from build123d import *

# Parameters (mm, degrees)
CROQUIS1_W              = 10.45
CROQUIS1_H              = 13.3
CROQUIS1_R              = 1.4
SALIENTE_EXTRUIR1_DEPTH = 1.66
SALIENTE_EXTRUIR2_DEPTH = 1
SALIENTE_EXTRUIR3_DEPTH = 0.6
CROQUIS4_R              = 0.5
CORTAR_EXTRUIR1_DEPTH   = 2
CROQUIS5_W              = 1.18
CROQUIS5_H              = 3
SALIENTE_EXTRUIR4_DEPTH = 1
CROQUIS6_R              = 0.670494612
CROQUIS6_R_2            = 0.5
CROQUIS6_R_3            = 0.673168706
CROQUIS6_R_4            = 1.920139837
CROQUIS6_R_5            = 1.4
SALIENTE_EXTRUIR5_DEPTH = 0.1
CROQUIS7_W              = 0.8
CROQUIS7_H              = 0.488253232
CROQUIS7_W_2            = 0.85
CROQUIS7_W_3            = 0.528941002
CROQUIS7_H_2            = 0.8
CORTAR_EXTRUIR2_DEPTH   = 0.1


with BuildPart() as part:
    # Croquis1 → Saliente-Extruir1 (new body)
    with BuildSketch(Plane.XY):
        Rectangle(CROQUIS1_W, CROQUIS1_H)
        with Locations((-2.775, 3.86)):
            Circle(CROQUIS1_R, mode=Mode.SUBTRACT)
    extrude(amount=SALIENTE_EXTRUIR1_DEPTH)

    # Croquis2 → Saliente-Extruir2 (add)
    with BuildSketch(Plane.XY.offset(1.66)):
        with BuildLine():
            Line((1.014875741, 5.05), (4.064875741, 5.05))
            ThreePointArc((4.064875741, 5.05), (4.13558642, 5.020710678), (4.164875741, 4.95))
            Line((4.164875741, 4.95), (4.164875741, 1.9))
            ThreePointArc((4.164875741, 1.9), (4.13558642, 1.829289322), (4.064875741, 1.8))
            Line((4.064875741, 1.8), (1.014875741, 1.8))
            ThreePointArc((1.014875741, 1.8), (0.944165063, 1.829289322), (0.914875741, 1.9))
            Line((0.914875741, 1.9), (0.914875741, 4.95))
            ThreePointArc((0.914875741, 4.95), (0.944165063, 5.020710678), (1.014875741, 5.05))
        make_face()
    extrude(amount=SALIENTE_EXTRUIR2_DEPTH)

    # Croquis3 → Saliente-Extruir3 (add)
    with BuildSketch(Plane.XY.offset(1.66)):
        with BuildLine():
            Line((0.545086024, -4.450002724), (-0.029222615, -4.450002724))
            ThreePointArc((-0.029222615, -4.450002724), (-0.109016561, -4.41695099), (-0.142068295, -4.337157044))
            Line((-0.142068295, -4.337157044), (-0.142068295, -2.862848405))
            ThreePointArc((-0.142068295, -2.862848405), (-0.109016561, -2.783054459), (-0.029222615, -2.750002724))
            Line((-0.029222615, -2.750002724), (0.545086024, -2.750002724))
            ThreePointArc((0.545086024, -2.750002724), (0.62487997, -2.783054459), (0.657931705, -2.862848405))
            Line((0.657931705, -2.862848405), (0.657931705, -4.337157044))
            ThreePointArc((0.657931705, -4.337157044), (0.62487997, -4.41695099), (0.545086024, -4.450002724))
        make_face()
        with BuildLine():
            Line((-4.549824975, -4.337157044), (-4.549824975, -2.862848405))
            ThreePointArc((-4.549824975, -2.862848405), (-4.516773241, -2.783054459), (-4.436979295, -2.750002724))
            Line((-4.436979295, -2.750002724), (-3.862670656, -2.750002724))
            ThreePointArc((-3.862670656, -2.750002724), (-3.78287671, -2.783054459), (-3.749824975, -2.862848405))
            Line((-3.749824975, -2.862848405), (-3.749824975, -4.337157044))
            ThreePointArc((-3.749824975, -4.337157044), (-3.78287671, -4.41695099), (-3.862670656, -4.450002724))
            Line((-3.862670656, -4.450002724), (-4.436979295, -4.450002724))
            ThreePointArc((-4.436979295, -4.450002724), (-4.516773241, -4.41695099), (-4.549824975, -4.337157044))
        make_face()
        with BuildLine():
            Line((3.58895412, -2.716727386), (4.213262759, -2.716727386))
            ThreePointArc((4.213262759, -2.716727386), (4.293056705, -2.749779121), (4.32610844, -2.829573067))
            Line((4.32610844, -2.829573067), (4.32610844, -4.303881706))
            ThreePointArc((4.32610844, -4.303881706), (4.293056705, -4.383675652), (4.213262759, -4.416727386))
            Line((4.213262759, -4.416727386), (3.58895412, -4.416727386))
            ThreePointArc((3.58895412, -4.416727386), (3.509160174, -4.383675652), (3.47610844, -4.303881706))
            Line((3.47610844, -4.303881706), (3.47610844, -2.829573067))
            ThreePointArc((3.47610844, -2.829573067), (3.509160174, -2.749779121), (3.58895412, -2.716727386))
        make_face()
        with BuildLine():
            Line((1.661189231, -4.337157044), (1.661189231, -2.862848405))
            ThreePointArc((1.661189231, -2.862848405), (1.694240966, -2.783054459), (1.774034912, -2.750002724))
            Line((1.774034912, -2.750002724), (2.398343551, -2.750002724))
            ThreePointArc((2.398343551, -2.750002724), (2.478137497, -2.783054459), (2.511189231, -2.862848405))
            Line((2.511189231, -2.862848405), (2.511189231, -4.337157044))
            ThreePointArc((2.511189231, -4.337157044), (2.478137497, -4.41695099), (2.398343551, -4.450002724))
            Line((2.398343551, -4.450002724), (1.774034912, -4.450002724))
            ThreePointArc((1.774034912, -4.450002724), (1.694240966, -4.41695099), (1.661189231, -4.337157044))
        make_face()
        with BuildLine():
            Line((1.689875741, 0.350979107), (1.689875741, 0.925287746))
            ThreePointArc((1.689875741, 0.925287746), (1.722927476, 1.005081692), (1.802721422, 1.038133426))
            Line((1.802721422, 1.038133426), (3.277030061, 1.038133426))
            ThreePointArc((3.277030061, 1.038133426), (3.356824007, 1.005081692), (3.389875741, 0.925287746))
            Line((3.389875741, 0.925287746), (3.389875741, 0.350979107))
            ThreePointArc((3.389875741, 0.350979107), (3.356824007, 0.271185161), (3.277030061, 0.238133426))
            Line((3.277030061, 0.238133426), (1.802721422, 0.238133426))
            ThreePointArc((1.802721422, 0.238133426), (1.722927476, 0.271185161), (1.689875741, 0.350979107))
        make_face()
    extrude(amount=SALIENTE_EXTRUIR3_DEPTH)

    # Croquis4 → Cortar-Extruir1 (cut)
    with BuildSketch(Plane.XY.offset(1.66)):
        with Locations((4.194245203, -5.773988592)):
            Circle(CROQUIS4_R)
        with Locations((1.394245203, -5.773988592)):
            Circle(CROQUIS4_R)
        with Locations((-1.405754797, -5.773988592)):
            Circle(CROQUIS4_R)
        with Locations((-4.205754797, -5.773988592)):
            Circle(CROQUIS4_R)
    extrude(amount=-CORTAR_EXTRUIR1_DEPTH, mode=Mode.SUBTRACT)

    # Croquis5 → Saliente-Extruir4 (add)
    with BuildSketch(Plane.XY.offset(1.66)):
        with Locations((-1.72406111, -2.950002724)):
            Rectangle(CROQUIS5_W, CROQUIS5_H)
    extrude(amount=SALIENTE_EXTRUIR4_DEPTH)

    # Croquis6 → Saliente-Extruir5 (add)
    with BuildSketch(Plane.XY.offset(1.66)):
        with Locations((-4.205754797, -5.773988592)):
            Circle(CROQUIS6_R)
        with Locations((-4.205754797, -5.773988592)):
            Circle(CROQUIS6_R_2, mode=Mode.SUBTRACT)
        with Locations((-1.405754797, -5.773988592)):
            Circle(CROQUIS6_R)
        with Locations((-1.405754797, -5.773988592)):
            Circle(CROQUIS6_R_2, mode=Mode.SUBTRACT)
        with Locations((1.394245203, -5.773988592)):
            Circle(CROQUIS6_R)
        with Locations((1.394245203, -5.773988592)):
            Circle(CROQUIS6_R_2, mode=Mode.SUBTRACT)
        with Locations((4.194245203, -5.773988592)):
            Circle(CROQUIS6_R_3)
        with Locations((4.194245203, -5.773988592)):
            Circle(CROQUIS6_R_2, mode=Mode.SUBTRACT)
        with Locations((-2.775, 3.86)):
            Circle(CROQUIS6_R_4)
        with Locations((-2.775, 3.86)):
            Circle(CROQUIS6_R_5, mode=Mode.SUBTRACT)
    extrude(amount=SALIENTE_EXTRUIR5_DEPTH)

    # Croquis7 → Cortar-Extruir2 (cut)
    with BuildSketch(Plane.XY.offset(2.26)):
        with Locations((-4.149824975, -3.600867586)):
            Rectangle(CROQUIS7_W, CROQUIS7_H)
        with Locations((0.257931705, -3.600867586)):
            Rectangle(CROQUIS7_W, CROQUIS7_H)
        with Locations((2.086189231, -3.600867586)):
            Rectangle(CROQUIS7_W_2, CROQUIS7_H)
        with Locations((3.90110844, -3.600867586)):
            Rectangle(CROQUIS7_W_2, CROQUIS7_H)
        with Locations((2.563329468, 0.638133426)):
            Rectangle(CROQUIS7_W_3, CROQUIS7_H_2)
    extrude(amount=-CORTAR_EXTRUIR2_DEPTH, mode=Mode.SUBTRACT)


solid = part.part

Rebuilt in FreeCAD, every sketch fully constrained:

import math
import FreeCAD as App
import Part
import Sketcher
Q = App.Units.Quantity


def add_polygon(sketch, points):
    """Adds a closed chain of lines whose ends are joined by coincident constraints."""
    first, n = sketch.GeometryCount, len(points)
    for a, b in zip(points, points[1:] + points[:1]):
        sketch.addGeometry(Part.LineSegment(App.Vector(*a, 0), App.Vector(*b, 0)), False)
    for i in range(n):
        sketch.addConstraint(Sketcher.Constraint("Coincident", first + i, 2, first + (i + 1) % n, 1))

doc = App.newDocument("Part")
body = doc.addObject("PartDesign::Body", "Body")

# Sketch on XY plane
sketch1 = body.newObject("Sketcher::SketchObject", "Sketch")
sketch1.AttachmentSupport = (doc.getObject("XY_Plane"), [""])
sketch1.MapMode = "FlatFace"
add_polygon(sketch1, [(-5.2, 6.7), (-5.2, -6.7), (5.2, -6.7), (5.2, 6.7)])  # lines 0-3
sketch1.addGeometry(Part.Circle(App.Vector(-2.8, 3.9, 0), App.Vector(0, 0, 1), 1.4), False)  # 4
sketch1.addConstraint(Sketcher.Constraint("Vertical", 0))
sketch1.addConstraint(Sketcher.Constraint("Horizontal", 1))
sketch1.addConstraint(Sketcher.Constraint("Vertical", 2))
sketch1.addConstraint(Sketcher.Constraint("Horizontal", 3))
sketch1.addConstraint(Sketcher.Constraint("Symmetric", 0, 2, 2, 2, -1, 1))
sketch1.addConstraint(Sketcher.Constraint("Diameter", 4, Q("2.8 mm")))
sketch1.addConstraint(Sketcher.Constraint("DistanceY", 0, 2, 0, 1, Q("13.3 mm")))
sketch1.addConstraint(Sketcher.Constraint("DistanceX", 4, 3, 1, 2, Q("8 mm")))
sketch1.addConstraint(Sketcher.Constraint("DistanceX", 1, 1, 1, 2, Q("10.45 mm")))
sketch1.addConstraint(Sketcher.Constraint("DistanceY", -1, 1, 4, 3, Q("3.86 mm")))
pad1 = body.newObject("PartDesign::Pad", "Pad")
pad1.Profile = sketch1
pad1.Length = 1.66

# Sketch on XY plane
sketch2 = body.newObject("Sketcher::SketchObject", "Sketch001")
sketch2.AttachmentSupport = (doc.getObject("XY_Plane"), [""])
sketch2.MapMode = "FlatFace"
sketch2.AttachmentOffset = App.Placement(App.Vector(0, 0, 1.66), App.Rotation())
sketch2.addGeometry(Part.LineSegment(App.Vector(4.06, 5.05, 0), App.Vector(1.01, 5.05, 0)), False)
sketch2.addGeometry(Part.ArcOfCircle(Part.Circle(App.Vector(1.01, 4.95, 0), App.Vector(0, 0, 1), 0.1), math.radians(90), math.radians(180)), False)
sketch2.addGeometry(Part.LineSegment(App.Vector(0.91, 4.95, 0), App.Vector(0.91, 1.9, 0)), False)
sketch2.addGeometry(Part.ArcOfCircle(Part.Circle(App.Vector(1.01, 1.9, 0), App.Vector(0, 0, 1), 0.1), math.radians(180), math.radians(270)), False)
sketch2.addGeometry(Part.LineSegment(App.Vector(1.01, 1.8, 0), App.Vector(4.06, 1.8, 0)), False)
sketch2.addGeometry(Part.ArcOfCircle(Part.Circle(App.Vector(4.06, 1.9, 0), App.Vector(0, 0, 1), 0.1), math.radians(-90), math.radians(0)), False)
sketch2.addGeometry(Part.LineSegment(App.Vector(4.16, 1.9, 0), App.Vector(4.16, 4.95, 0)), False)
sketch2.addGeometry(Part.ArcOfCircle(Part.Circle(App.Vector(4.06, 4.95, 0), App.Vector(0, 0, 1), 0.1), math.radians(0), math.radians(90)), False)
sketch2.addConstraint(Sketcher.Constraint("Tangent", 0, 2, 1, 1))
sketch2.addConstraint(Sketcher.Constraint("Tangent", 1, 2, 2, 1))
sketch2.addConstraint(Sketcher.Constraint("Tangent", 2, 2, 3, 1))
sketch2.addConstraint(Sketcher.Constraint("Tangent", 3, 2, 4, 1))
sketch2.addConstraint(Sketcher.Constraint("Tangent", 4, 2, 5, 1))
sketch2.addConstraint(Sketcher.Constraint("Tangent", 5, 2, 6, 1))
sketch2.addConstraint(Sketcher.Constraint("Tangent", 6, 2, 7, 1))
sketch2.addConstraint(Sketcher.Constraint("Tangent", 7, 2, 0, 1))
sketch2.addConstraint(Sketcher.Constraint("Horizontal", 0))
sketch2.addConstraint(Sketcher.Constraint("Vertical", 2))
sketch2.addConstraint(Sketcher.Constraint("Horizontal", 4))
sketch2.addConstraint(Sketcher.Constraint("Vertical", 6))
sketch2.addConstraint(Sketcher.Constraint("Equal", 1, 3))
sketch2.addConstraint(Sketcher.Constraint("Equal", 3, 5))
sketch2.addConstraint(Sketcher.Constraint("Equal", 5, 7))
sketch2.addConstraint(Sketcher.Constraint("Equal", 4, 2))
sketch2.addConstraint(Sketcher.Constraint("Radius", 1, Q("0.1 mm")))
sketch2.addConstraint(Sketcher.Constraint("DistanceX", 0, 2, 0, 1, Q("3.05 mm")))
sketch2.addConstraint(Sketcher.Constraint("DistanceY", -1, 1, 3, 3, Q("1.9 mm")))
sketch2.addConstraint(Sketcher.Constraint("DistanceX", -1, 1, 1, 3, Q("1.014876 mm")))
pad2 = body.newObject("PartDesign::Pad", "Pad001")
pad2.Profile = sketch2
pad2.Length = 1

# Sketch on XY plane
sketch3 = body.newObject("Sketcher::SketchObject", "Sketch002")
sketch3.AttachmentSupport = (doc.getObject("XY_Plane"), [""])
sketch3.MapMode = "FlatFace"
sketch3.AttachmentOffset = App.Placement(App.Vector(0, 0, 1.66), App.Rotation())
sketch3.addGeometry(Part.LineSegment(App.Vector(-0.03, -4.45, 0), App.Vector(0.55, -4.45, 0)), False)
sketch3.addGeometry(Part.ArcOfCircle(Part.Circle(App.Vector(0.55, -4.34, 0), App.Vector(0, 0, 1), 0.11), math.radians(-90), math.radians(0)), False)
sketch3.addGeometry(Part.LineSegment(App.Vector(0.66, -4.34, 0), App.Vector(0.66, -2.86, 0)), False)
sketch3.addGeometry(Part.ArcOfCircle(Part.Circle(App.Vector(0.55, -2.86, 0), App.Vector(0, 0, 1), 0.11), math.radians(0), math.radians(90)), False)
sketch3.addGeometry(Part.LineSegment(App.Vector(0.55, -2.75, 0), App.Vector(-0.03, -2.75, 0)), False)
sketch3.addGeometry(Part.ArcOfCircle(Part.Circle(App.Vector(-0.03, -2.86, 0), App.Vector(0, 0, 1), 0.11), math.radians(90), math.radians(180)), False)
sketch3.addGeometry(Part.LineSegment(App.Vector(-0.14, -2.86, 0), App.Vector(-0.14, -4.34, 0)), False)
sketch3.addGeometry(Part.ArcOfCircle(Part.Circle(App.Vector(-0.03, -4.34, 0), App.Vector(0, 0, 1), 0.11), math.radians(180), math.radians(270)), False)
sketch3.addGeometry(Part.LineSegment(App.Vector(-4.55, -2.86, 0), App.Vector(-4.55, -4.34, 0)), False)
sketch3.addGeometry(Part.ArcOfCircle(Part.Circle(App.Vector(-4.44, -4.34, 0), App.Vector(0, 0, 1), 0.11), math.radians(180), math.radians(270)), False)
sketch3.addGeometry(Part.LineSegment(App.Vector(-4.44, -4.45, 0), App.Vector(-3.86, -4.45, 0)), False)
sketch3.addGeometry(Part.ArcOfCircle(Part.Circle(App.Vector(-3.86, -4.34, 0), App.Vector(0, 0, 1), 0.11), math.radians(-90), math.radians(0)), False)
sketch3.addGeometry(Part.LineSegment(App.Vector(-3.75, -4.34, 0), App.Vector(-3.75, -2.86, 0)), False)
sketch3.addGeometry(Part.ArcOfCircle(Part.Circle(App.Vector(-3.86, -2.86, 0), App.Vector(0, 0, 1), 0.11), math.radians(0), math.radians(90)), False)
sketch3.addGeometry(Part.LineSegment(App.Vector(-3.86, -2.75, 0), App.Vector(-4.44, -2.75, 0)), False)
sketch3.addGeometry(Part.ArcOfCircle(Part.Circle(App.Vector(-4.44, -2.86, 0), App.Vector(0, 0, 1), 0.11), math.radians(90), math.radians(180)), False)
sketch3.addGeometry(Part.LineSegment(App.Vector(4.21, -2.72, 0), App.Vector(3.59, -2.72, 0)), False)
sketch3.addGeometry(Part.ArcOfCircle(Part.Circle(App.Vector(3.59, -2.83, 0), App.Vector(0, 0, 1), 0.11), math.radians(90), math.radians(180)), False)
sketch3.addGeometry(Part.LineSegment(App.Vector(3.48, -2.83, 0), App.Vector(3.48, -4.3, 0)), False)
sketch3.addGeometry(Part.ArcOfCircle(Part.Circle(App.Vector(3.59, -4.3, 0), App.Vector(0, 0, 1), 0.11), math.radians(180), math.radians(270)), False)
sketch3.addGeometry(Part.LineSegment(App.Vector(3.59, -4.42, 0), App.Vector(4.21, -4.42, 0)), False)
sketch3.addGeometry(Part.ArcOfCircle(Part.Circle(App.Vector(4.21, -4.3, 0), App.Vector(0, 0, 1), 0.11), math.radians(-90), math.radians(0)), False)
sketch3.addGeometry(Part.LineSegment(App.Vector(4.33, -4.3, 0), App.Vector(4.33, -2.83, 0)), False)
sketch3.addGeometry(Part.ArcOfCircle(Part.Circle(App.Vector(4.21, -2.83, 0), App.Vector(0, 0, 1), 0.11), math.radians(0), math.radians(90)), False)
sketch3.addGeometry(Part.LineSegment(App.Vector(1.66, -2.86, 0), App.Vector(1.66, -4.34, 0)), False)
sketch3.addGeometry(Part.ArcOfCircle(Part.Circle(App.Vector(1.77, -4.34, 0), App.Vector(0, 0, 1), 0.11), math.radians(180), math.radians(270)), False)
sketch3.addGeometry(Part.LineSegment(App.Vector(1.77, -4.45, 0), App.Vector(2.4, -4.45, 0)), False)
sketch3.addGeometry(Part.ArcOfCircle(Part.Circle(App.Vector(2.4, -4.34, 0), App.Vector(0, 0, 1), 0.11), math.radians(-90), math.radians(0)), False)
sketch3.addGeometry(Part.LineSegment(App.Vector(2.51, -4.34, 0), App.Vector(2.51, -2.86, 0)), False)
sketch3.addGeometry(Part.ArcOfCircle(Part.Circle(App.Vector(2.4, -2.86, 0), App.Vector(0, 0, 1), 0.11), math.radians(0), math.radians(90)), False)
sketch3.addGeometry(Part.LineSegment(App.Vector(2.4, -2.75, 0), App.Vector(1.77, -2.75, 0)), False)
sketch3.addGeometry(Part.ArcOfCircle(Part.Circle(App.Vector(1.77, -2.86, 0), App.Vector(0, 0, 1), 0.11), math.radians(90), math.radians(180)), False)
sketch3.addGeometry(Part.LineSegment(App.Vector(1.69, 0.93, 0), App.Vector(1.69, 0.35, 0)), False)
sketch3.addGeometry(Part.ArcOfCircle(Part.Circle(App.Vector(1.8, 0.35, 0), App.Vector(0, 0, 1), 0.11), math.radians(-180), math.radians(-90)), False)
sketch3.addGeometry(Part.LineSegment(App.Vector(1.8, 0.24, 0), App.Vector(3.28, 0.24, 0)), False)
sketch3.addGeometry(Part.ArcOfCircle(Part.Circle(App.Vector(3.28, 0.35, 0), App.Vector(0, 0, 1), 0.11), math.radians(-90), math.radians(0)), False)
sketch3.addGeometry(Part.LineSegment(App.Vector(3.39, 0.35, 0), App.Vector(3.39, 0.93, 0)), False)
sketch3.addGeometry(Part.ArcOfCircle(Part.Circle(App.Vector(3.28, 0.93, 0), App.Vector(0, 0, 1), 0.11), math.radians(0), math.radians(90)), False)
sketch3.addGeometry(Part.LineSegment(App.Vector(3.28, 1.04, 0), App.Vector(1.8, 1.04, 0)), False)
sketch3.addGeometry(Part.ArcOfCircle(Part.Circle(App.Vector(1.8, 0.93, 0), App.Vector(0, 0, 1), 0.11), math.radians(90), math.radians(180)), False)
sketch3.addConstraint(Sketcher.Constraint("Tangent", 0, 2, 1, 1))
sketch3.addConstraint(Sketcher.Constraint("Tangent", 1, 2, 2, 1))
sketch3.addConstraint(Sketcher.Constraint("Tangent", 2, 2, 3, 1))
sketch3.addConstraint(Sketcher.Constraint("Tangent", 3, 2, 4, 1))
sketch3.addConstraint(Sketcher.Constraint("Tangent", 4, 2, 5, 1))
sketch3.addConstraint(Sketcher.Constraint("Tangent", 5, 2, 6, 1))
sketch3.addConstraint(Sketcher.Constraint("Tangent", 6, 2, 7, 1))
sketch3.addConstraint(Sketcher.Constraint("Tangent", 7, 2, 0, 1))
sketch3.addConstraint(Sketcher.Constraint("Tangent", 8, 2, 9, 1))
sketch3.addConstraint(Sketcher.Constraint("Tangent", 9, 2, 10, 1))
sketch3.addConstraint(Sketcher.Constraint("Tangent", 10, 2, 11, 1))
sketch3.addConstraint(Sketcher.Constraint("Tangent", 11, 2, 12, 1))
sketch3.addConstraint(Sketcher.Constraint("Tangent", 12, 2, 13, 1))
sketch3.addConstraint(Sketcher.Constraint("Tangent", 13, 2, 14, 1))
sketch3.addConstraint(Sketcher.Constraint("Tangent", 14, 2, 15, 1))
sketch3.addConstraint(Sketcher.Constraint("Tangent", 15, 2, 8, 1))
sketch3.addConstraint(Sketcher.Constraint("Tangent", 16, 2, 17, 1))
sketch3.addConstraint(Sketcher.Constraint("Tangent", 17, 2, 18, 1))
sketch3.addConstraint(Sketcher.Constraint("Tangent", 18, 2, 19, 1))
sketch3.addConstraint(Sketcher.Constraint("Tangent", 19, 2, 20, 1))
sketch3.addConstraint(Sketcher.Constraint("Tangent", 20, 2, 21, 1))
sketch3.addConstraint(Sketcher.Constraint("Tangent", 21, 2, 22, 1))
sketch3.addConstraint(Sketcher.Constraint("Tangent", 22, 2, 23, 1))
sketch3.addConstraint(Sketcher.Constraint("Tangent", 23, 2, 16, 1))
sketch3.addConstraint(Sketcher.Constraint("Tangent", 24, 2, 25, 1))
sketch3.addConstraint(Sketcher.Constraint("Tangent", 25, 2, 26, 1))
sketch3.addConstraint(Sketcher.Constraint("Tangent", 26, 2, 27, 1))
sketch3.addConstraint(Sketcher.Constraint("Tangent", 27, 2, 28, 1))
sketch3.addConstraint(Sketcher.Constraint("Tangent", 28, 2, 29, 1))
sketch3.addConstraint(Sketcher.Constraint("Tangent", 29, 2, 30, 1))
sketch3.addConstraint(Sketcher.Constraint("Tangent", 30, 2, 31, 1))
sketch3.addConstraint(Sketcher.Constraint("Tangent", 31, 2, 24, 1))
sketch3.addConstraint(Sketcher.Constraint("Tangent", 32, 2, 33, 1))
sketch3.addConstraint(Sketcher.Constraint("Tangent", 33, 2, 34, 1))
sketch3.addConstraint(Sketcher.Constraint("Tangent", 34, 2, 35, 1))
sketch3.addConstraint(Sketcher.Constraint("Tangent", 35, 2, 36, 1))
sketch3.addConstraint(Sketcher.Constraint("Tangent", 36, 2, 37, 1))
sketch3.addConstraint(Sketcher.Constraint("Tangent", 37, 2, 38, 1))
sketch3.addConstraint(Sketcher.Constraint("Tangent", 38, 2, 39, 1))
sketch3.addConstraint(Sketcher.Constraint("Tangent", 39, 2, 32, 1))
sketch3.addConstraint(Sketcher.Constraint("Horizontal", 0))
sketch3.addConstraint(Sketcher.Constraint("Vertical", 2))
sketch3.addConstraint(Sketcher.Constraint("Horizontal", 4))
sketch3.addConstraint(Sketcher.Constraint("Vertical", 6))
sketch3.addConstraint(Sketcher.Constraint("Vertical", 8))
sketch3.addConstraint(Sketcher.Constraint("Horizontal", 10))
sketch3.addConstraint(Sketcher.Constraint("Vertical", 12))
sketch3.addConstraint(Sketcher.Constraint("Horizontal", 14))
sketch3.addConstraint(Sketcher.Constraint("Horizontal", 16))
sketch3.addConstraint(Sketcher.Constraint("Vertical", 18))
sketch3.addConstraint(Sketcher.Constraint("Horizontal", 20))
sketch3.addConstraint(Sketcher.Constraint("Vertical", 22))
sketch3.addConstraint(Sketcher.Constraint("Vertical", 24))
sketch3.addConstraint(Sketcher.Constraint("Horizontal", 26))
sketch3.addConstraint(Sketcher.Constraint("Vertical", 28))
sketch3.addConstraint(Sketcher.Constraint("Horizontal", 30))
sketch3.addConstraint(Sketcher.Constraint("Vertical", 32))
sketch3.addConstraint(Sketcher.Constraint("Horizontal", 34))
sketch3.addConstraint(Sketcher.Constraint("Vertical", 36))
sketch3.addConstraint(Sketcher.Constraint("Horizontal", 38))
sketch3.addConstraint(Sketcher.Constraint("Equal", 1, 3))
sketch3.addConstraint(Sketcher.Constraint("Equal", 3, 5))
sketch3.addConstraint(Sketcher.Constraint("Equal", 5, 7))
sketch3.addConstraint(Sketcher.Constraint("Equal", 7, 9))
sketch3.addConstraint(Sketcher.Constraint("Equal", 9, 11))
sketch3.addConstraint(Sketcher.Constraint("Equal", 11, 13))
sketch3.addConstraint(Sketcher.Constraint("Equal", 13, 15))
sketch3.addConstraint(Sketcher.Constraint("Equal", 15, 17))
sketch3.addConstraint(Sketcher.Constraint("Equal", 17, 19))
sketch3.addConstraint(Sketcher.Constraint("Equal", 19, 21))
sketch3.addConstraint(Sketcher.Constraint("Equal", 21, 23))
sketch3.addConstraint(Sketcher.Constraint("Equal", 23, 25))
sketch3.addConstraint(Sketcher.Constraint("Equal", 25, 27))
sketch3.addConstraint(Sketcher.Constraint("Equal", 27, 29))
sketch3.addConstraint(Sketcher.Constraint("Equal", 29, 31))
sketch3.addConstraint(Sketcher.Constraint("Equal", 31, 33))
sketch3.addConstraint(Sketcher.Constraint("Equal", 33, 35))
sketch3.addConstraint(Sketcher.Constraint("Equal", 35, 37))
sketch3.addConstraint(Sketcher.Constraint("Equal", 37, 39))
sketch3.addConstraint(Sketcher.Constraint("Horizontal", 7, 3, 9, 3))
sketch3.addConstraint(Sketcher.Constraint("Horizontal", 5, 3, 13, 3))
sketch3.addConstraint(Sketcher.Constraint("Horizontal", 11, 3, 25, 3))
sketch3.addConstraint(Sketcher.Constraint("Horizontal", 15, 3, 29, 3))
sketch3.addConstraint(Sketcher.Constraint("Equal", 4, 10))
sketch3.addConstraint(Sketcher.Constraint("Equal", 20, 26))
sketch3.addConstraint(Sketcher.Constraint("Equal", 38, 2))
sketch3.addConstraint(Sketcher.Constraint("Equal", 12, 18))
sketch3.addConstraint(Sketcher.Constraint("Equal", 14, 32))
sketch3.addConstraint(Sketcher.Constraint("DistanceX", 5, 2, 2, 2, Q("0.8 mm")))
sketch3.addConstraint(Sketcher.Constraint("DistanceX", 18, 2, 21, 2, Q("0.85 mm")))
sketch3.addConstraint(Sketcher.Constraint("Radius", 1, Q("0.112846 mm")))
sketch3.addConstraint(Sketcher.Constraint("DistanceX", 34, 1, 34, 2, Q("1.474309 mm")))
sketch3.addConstraint(Sketcher.Constraint("DistanceY", 3, 3, -1, 1, Q("2.862848 mm")))
sketch3.addConstraint(Sketcher.Constraint("DistanceX", 9, 3, -1, 1, Q("4.436979 mm")))
sketch3.addConstraint(Sketcher.Constraint("DistanceY", 19, 3, -1, 1, Q("4.303882 mm")))
sketch3.addConstraint(Sketcher.Constraint("DistanceX", -1, 1, 33, 3, Q("1.802721 mm")))
sketch3.addConstraint(Sketcher.Constraint("DistanceY", -1, 1, 33, 3, Q("0.350979 mm")))
sketch3.addConstraint(Sketcher.Constraint("DistanceX", -1, 1, 1, 2, Q("0.657932 mm")))
sketch3.addConstraint(Sketcher.Constraint("DistanceX", -1, 1, 17, 2, Q("3.476108 mm")))
sketch3.addConstraint(Sketcher.Constraint("DistanceX", -1, 1, 24, 2, Q("1.661189 mm")))
pad3 = body.newObject("PartDesign::Pad", "Pad002")
pad3.Profile = sketch3
pad3.Length = 0.6

# Sketch on XY plane
sketch4 = body.newObject("Sketcher::SketchObject", "Sketch003")
sketch4.AttachmentSupport = (doc.getObject("XY_Plane"), [""])
sketch4.MapMode = "FlatFace"
sketch4.AttachmentOffset = App.Placement(App.Vector(0, 0, 1.66), App.Rotation())
sketch4.addGeometry(Part.Circle(App.Vector(4.2, -5.8, 0), App.Vector(0, 0, 1), 0.5), False)
sketch4.addGeometry(Part.Circle(App.Vector(1.4, -5.8, 0), App.Vector(0, 0, 1), 0.5), False)
sketch4.addGeometry(Part.Circle(App.Vector(-1.4, -5.8, 0), App.Vector(0, 0, 1), 0.5), False)
sketch4.addGeometry(Part.Circle(App.Vector(-4.2, -5.8, 0), App.Vector(0, 0, 1), 0.5), False)
sketch4.addConstraint(Sketcher.Constraint("Equal", 0, 1))
sketch4.addConstraint(Sketcher.Constraint("Equal", 1, 2))
sketch4.addConstraint(Sketcher.Constraint("Equal", 2, 3))
sketch4.addConstraint(Sketcher.Constraint("Horizontal", 0, 3, 1, 3))
sketch4.addConstraint(Sketcher.Constraint("Horizontal", 1, 3, 2, 3))
sketch4.addConstraint(Sketcher.Constraint("Horizontal", 2, 3, 3, 3))
sketch4.addConstraint(Sketcher.Constraint("Diameter", 0, Q("1 mm")))
sketch4.addConstraint(Sketcher.Constraint("DistanceX", 1, 3, 0, 3, Q("2.8 mm")))
sketch4.addConstraint(Sketcher.Constraint("DistanceX", 2, 3, 1, 3, Q("2.8 mm")))
sketch4.addConstraint(Sketcher.Constraint("DistanceX", 3, 3, 2, 3, Q("2.8 mm")))
sketch4.addConstraint(Sketcher.Constraint("DistanceY", 0, 3, -1, 1, Q("5.773989 mm")))
sketch4.addConstraint(Sketcher.Constraint("DistanceX", -1, 1, 0, 3, Q("4.194245 mm")))
pocket1 = body.newObject("PartDesign::Pocket", "Pocket")
pocket1.Profile = sketch4
pocket1.Length = 2

# Sketch on XY plane
sketch5 = body.newObject("Sketcher::SketchObject", "Sketch004")
sketch5.AttachmentSupport = (doc.getObject("XY_Plane"), [""])
sketch5.MapMode = "FlatFace"
sketch5.AttachmentOffset = App.Placement(App.Vector(0, 0, 1.66), App.Rotation())
add_polygon(sketch5, [(-2.3, -1.5), (-2.3, -4.5), (-1.1, -4.5), (-1.1, -1.5)])  # lines 0-3
sketch5.addConstraint(Sketcher.Constraint("Vertical", 0))
sketch5.addConstraint(Sketcher.Constraint("Horizontal", 1))
sketch5.addConstraint(Sketcher.Constraint("Vertical", 2))
sketch5.addConstraint(Sketcher.Constraint("Horizontal", 3))
sketch5.addConstraint(Sketcher.Constraint("DistanceY", 0, 2, 0, 1, Q("3 mm")))
sketch5.addConstraint(Sketcher.Constraint("DistanceX", 1, 1, 1, 2, Q("1.18 mm")))
sketch5.addConstraint(Sketcher.Constraint("DistanceX", 0, 2, -1, 1, Q("2.314061 mm")))
sketch5.addConstraint(Sketcher.Constraint("DistanceY", 0, 2, -1, 1, Q("4.450003 mm")))
pad4 = body.newObject("PartDesign::Pad", "Pad003")
pad4.Profile = sketch5
pad4.Length = 1

# Sketch on XY plane
sketch6 = body.newObject("Sketcher::SketchObject", "Sketch005")
sketch6.AttachmentSupport = (doc.getObject("XY_Plane"), [""])
sketch6.MapMode = "FlatFace"
sketch6.AttachmentOffset = App.Placement(App.Vector(0, 0, 1.66), App.Rotation())
sketch6.addGeometry(Part.Circle(App.Vector(-4.2, -5.8, 0), App.Vector(0, 0, 1), 0.7), False)
sketch6.addGeometry(Part.Circle(App.Vector(-4.2, -5.8, 0), App.Vector(0, 0, 1), 0.5), False)
sketch6.addGeometry(Part.Circle(App.Vector(-1.4, -5.8, 0), App.Vector(0, 0, 1), 0.7), False)
sketch6.addGeometry(Part.Circle(App.Vector(-1.4, -5.8, 0), App.Vector(0, 0, 1), 0.5), False)
sketch6.addGeometry(Part.Circle(App.Vector(1.4, -5.8, 0), App.Vector(0, 0, 1), 0.7), False)
sketch6.addGeometry(Part.Circle(App.Vector(1.4, -5.8, 0), App.Vector(0, 0, 1), 0.5), False)
sketch6.addGeometry(Part.Circle(App.Vector(4.2, -5.8, 0), App.Vector(0, 0, 1), 0.7), False)
sketch6.addGeometry(Part.Circle(App.Vector(4.2, -5.8, 0), App.Vector(0, 0, 1), 0.5), False)
sketch6.addGeometry(Part.Circle(App.Vector(-2.8, 3.9, 0), App.Vector(0, 0, 1), 1.9), False)
sketch6.addGeometry(Part.Circle(App.Vector(-2.8, 3.9, 0), App.Vector(0, 0, 1), 1.4), False)
sketch6.addConstraint(Sketcher.Constraint("Coincident", 1, 3, 0, 3))
sketch6.addConstraint(Sketcher.Constraint("Coincident", 3, 3, 2, 3))
sketch6.addConstraint(Sketcher.Constraint("Coincident", 5, 3, 4, 3))
sketch6.addConstraint(Sketcher.Constraint("Coincident", 7, 3, 6, 3))
sketch6.addConstraint(Sketcher.Constraint("Coincident", 9, 3, 8, 3))
sketch6.addConstraint(Sketcher.Constraint("Equal", 0, 2))
sketch6.addConstraint(Sketcher.Constraint("Equal", 1, 3))
sketch6.addConstraint(Sketcher.Constraint("Equal", 2, 4))
sketch6.addConstraint(Sketcher.Constraint("Equal", 3, 5))
sketch6.addConstraint(Sketcher.Constraint("Equal", 5, 7))
sketch6.addConstraint(Sketcher.Constraint("Horizontal", 1, 3, 2, 3))
sketch6.addConstraint(Sketcher.Constraint("Horizontal", 3, 3, 4, 3))
sketch6.addConstraint(Sketcher.Constraint("Horizontal", 5, 3, 6, 3))
sketch6.addConstraint(Sketcher.Constraint("Diameter", 1, Q("1 mm")))
sketch6.addConstraint(Sketcher.Constraint("Diameter", 9, Q("2.8 mm")))
sketch6.addConstraint(Sketcher.Constraint("DistanceX", 0, 3, 2, 3, Q("2.8 mm")))
sketch6.addConstraint(Sketcher.Constraint("DistanceX", 2, 3, 4, 3, Q("2.8 mm")))
sketch6.addConstraint(Sketcher.Constraint("DistanceX", 4, 3, 6, 3, Q("2.8 mm")))
sketch6.addConstraint(Sketcher.Constraint("Diameter", 0, Q("1.340989 mm")))
sketch6.addConstraint(Sketcher.Constraint("Diameter", 8, Q("3.84028 mm")))
sketch6.addConstraint(Sketcher.Constraint("DistanceY", -1, 1, 8, 3, Q("3.86 mm")))
sketch6.addConstraint(Sketcher.Constraint("Diameter", 6, Q("1.346337 mm")))
sketch6.addConstraint(Sketcher.Constraint("DistanceX", 8, 3, -1, 1, Q("2.775 mm")))
sketch6.addConstraint(Sketcher.Constraint("DistanceY", 0, 3, -1, 1, Q("5.773989 mm")))
sketch6.addConstraint(Sketcher.Constraint("DistanceX", 0, 3, -1, 1, Q("4.205755 mm")))
pad5 = body.newObject("PartDesign::Pad", "Pad004")
pad5.Profile = sketch6
pad5.Length = 0.1

# Sketch on XY plane
sketch7 = body.newObject("Sketcher::SketchObject", "Sketch006")
sketch7.AttachmentSupport = (doc.getObject("XY_Plane"), [""])
sketch7.MapMode = "FlatFace"
sketch7.AttachmentOffset = App.Placement(App.Vector(0, 0, 2.26), App.Rotation())
add_polygon(sketch7, [(-4.55, -3.36), (-4.55, -3.84), (-3.75, -3.84), (-3.75, -3.36)])  # lines 0-3
add_polygon(sketch7, [(-0.14, -3.36), (-0.14, -3.84), (0.66, -3.84), (0.66, -3.36)])  # lines 4-7
add_polygon(sketch7, [(1.66, -3.36), (1.66, -3.84), (2.51, -3.84), (2.51, -3.36)])  # lines 8-11
add_polygon(sketch7, [(3.48, -3.36), (3.48, -3.84), (4.33, -3.84), (4.33, -3.36)])  # lines 12-15
add_polygon(sketch7, [(2.3, 1.04), (2.3, 0.24), (2.83, 0.24), (2.83, 1.04)])  # lines 16-19
sketch7.addConstraint(Sketcher.Constraint("Vertical", 0))
sketch7.addConstraint(Sketcher.Constraint("Horizontal", 1))
sketch7.addConstraint(Sketcher.Constraint("Vertical", 2))
sketch7.addConstraint(Sketcher.Constraint("Horizontal", 3))
sketch7.addConstraint(Sketcher.Constraint("Vertical", 4))
sketch7.addConstraint(Sketcher.Constraint("Horizontal", 5))
sketch7.addConstraint(Sketcher.Constraint("Vertical", 6))
sketch7.addConstraint(Sketcher.Constraint("Horizontal", 7))
sketch7.addConstraint(Sketcher.Constraint("Vertical", 8))
sketch7.addConstraint(Sketcher.Constraint("Horizontal", 9))
sketch7.addConstraint(Sketcher.Constraint("Vertical", 10))
sketch7.addConstraint(Sketcher.Constraint("Horizontal", 11))
sketch7.addConstraint(Sketcher.Constraint("Vertical", 12))
sketch7.addConstraint(Sketcher.Constraint("Horizontal", 13))
sketch7.addConstraint(Sketcher.Constraint("Vertical", 14))
sketch7.addConstraint(Sketcher.Constraint("Horizontal", 15))
sketch7.addConstraint(Sketcher.Constraint("Vertical", 16))
sketch7.addConstraint(Sketcher.Constraint("Horizontal", 17))
sketch7.addConstraint(Sketcher.Constraint("Vertical", 18))
sketch7.addConstraint(Sketcher.Constraint("Horizontal", 19))
sketch7.addConstraint(Sketcher.Constraint("Horizontal", 1, 2, 4, 2))
sketch7.addConstraint(Sketcher.Constraint("Horizontal", 3, 2, 6, 2))
sketch7.addConstraint(Sketcher.Constraint("Horizontal", 5, 2, 8, 2))
sketch7.addConstraint(Sketcher.Constraint("Horizontal", 7, 2, 10, 2))
sketch7.addConstraint(Sketcher.Constraint("Horizontal", 9, 2, 12, 2))
sketch7.addConstraint(Sketcher.Constraint("Horizontal", 11, 2, 14, 2))
sketch7.addConstraint(Sketcher.Constraint("Equal", 3, 5))
sketch7.addConstraint(Sketcher.Constraint("Equal", 11, 13))
sketch7.addConstraint(Sketcher.Constraint("Equal", 7, 16))
sketch7.addConstraint(Sketcher.Constraint("DistanceX", 1, 1, 1, 2, Q("0.8 mm")))
sketch7.addConstraint(Sketcher.Constraint("DistanceX", 9, 1, 9, 2, Q("0.85 mm")))
sketch7.addConstraint(Sketcher.Constraint("DistanceX", 17, 1, 17, 2, Q("0.528941 mm")))
sketch7.addConstraint(Sketcher.Constraint("DistanceX", -1, 1, 17, 2, Q("2.8278 mm")))
sketch7.addConstraint(Sketcher.Constraint("DistanceY", 0, 2, 0, 1, Q("0.488253 mm")))
sketch7.addConstraint(Sketcher.Constraint("DistanceY", 2, 2, -1, 1, Q("3.356741 mm")))
sketch7.addConstraint(Sketcher.Constraint("DistanceX", 4, 2, -1, 1, Q("0.142068 mm")))
sketch7.addConstraint(Sketcher.Constraint("DistanceX", -1, 1, 8, 2, Q("1.661189 mm")))
sketch7.addConstraint(Sketcher.Constraint("DistanceX", -1, 1, 12, 2, Q("3.476108 mm")))
sketch7.addConstraint(Sketcher.Constraint("DistanceX", 0, 2, -1, 1, Q("4.549825 mm")))
sketch7.addConstraint(Sketcher.Constraint("DistanceY", -1, 1, 16, 2, Q("0.238133 mm")))
pocket2 = body.newObject("PartDesign::Pocket", "Pocket001")
pocket2.Profile = sketch7
pocket2.Length = 0.1

doc.recompute()
